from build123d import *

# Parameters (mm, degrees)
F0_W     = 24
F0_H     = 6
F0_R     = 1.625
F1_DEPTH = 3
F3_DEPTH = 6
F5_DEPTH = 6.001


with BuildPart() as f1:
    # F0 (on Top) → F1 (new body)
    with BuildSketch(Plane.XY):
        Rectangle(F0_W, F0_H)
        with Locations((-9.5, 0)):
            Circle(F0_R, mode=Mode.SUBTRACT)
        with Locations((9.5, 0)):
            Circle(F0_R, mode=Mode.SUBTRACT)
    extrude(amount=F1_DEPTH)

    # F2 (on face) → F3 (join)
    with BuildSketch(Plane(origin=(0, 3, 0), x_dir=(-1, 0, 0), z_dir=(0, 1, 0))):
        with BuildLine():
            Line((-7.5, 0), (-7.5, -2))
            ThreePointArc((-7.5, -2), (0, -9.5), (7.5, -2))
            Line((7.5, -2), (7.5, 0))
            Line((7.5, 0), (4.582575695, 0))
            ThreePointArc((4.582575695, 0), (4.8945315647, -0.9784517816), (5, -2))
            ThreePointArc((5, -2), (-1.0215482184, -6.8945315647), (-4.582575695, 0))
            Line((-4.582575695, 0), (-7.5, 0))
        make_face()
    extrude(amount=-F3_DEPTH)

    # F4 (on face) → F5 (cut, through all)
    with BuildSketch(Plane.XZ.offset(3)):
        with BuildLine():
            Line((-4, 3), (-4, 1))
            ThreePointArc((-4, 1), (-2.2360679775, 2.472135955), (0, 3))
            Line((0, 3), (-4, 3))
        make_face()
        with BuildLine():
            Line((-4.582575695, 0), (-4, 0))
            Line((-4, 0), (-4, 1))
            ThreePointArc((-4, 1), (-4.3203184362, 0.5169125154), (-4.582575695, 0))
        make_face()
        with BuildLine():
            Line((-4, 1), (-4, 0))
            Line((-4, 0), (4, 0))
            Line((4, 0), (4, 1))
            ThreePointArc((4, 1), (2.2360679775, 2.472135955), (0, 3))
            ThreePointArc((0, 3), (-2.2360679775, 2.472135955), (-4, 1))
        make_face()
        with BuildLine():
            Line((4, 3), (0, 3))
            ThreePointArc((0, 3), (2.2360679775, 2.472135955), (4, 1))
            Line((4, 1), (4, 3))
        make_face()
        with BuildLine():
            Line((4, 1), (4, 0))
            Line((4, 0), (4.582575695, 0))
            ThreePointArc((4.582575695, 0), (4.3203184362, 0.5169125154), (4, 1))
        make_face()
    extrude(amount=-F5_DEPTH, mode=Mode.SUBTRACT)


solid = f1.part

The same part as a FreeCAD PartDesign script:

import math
import FreeCAD as App
import Part
import Sketcher
from FreeCAD import Vector
Q = App.Units.Quantity

doc = App.newDocument("Part")
body = doc.addObject("PartDesign::Body", "Body")

# Sketch on XY plane
sketch1 = body.newObject("Sketcher::SketchObject", "Sketch")
sketch1.AttachmentSupport = (doc.getObject("XY_Plane"), [""])
sketch1.MapMode = "FlatFace"
sketch1.addGeometry([
    Part.LineSegment(Vector(-12, 3, 0), Vector(-12, -3, 0)),  # 0
    Part.LineSegment(Vector(-12, -3, 0), Vector(12, -3, 0)),  # 1
    Part.LineSegment(Vector(12, -3, 0), Vector(12, 3, 0)),  # 2
    Part.LineSegment(Vector(12, 3, 0), Vector(-12, 3, 0)),  # 3
    Part.Circle(Vector(-9.5, 0, 0), Vector(0, 0, 1), 1.6),  # 4
    Part.Circle(Vector(9.5, 0, 0), Vector(0, 0, 1), 1.6),  # 5
], False)
sketch1.addConstraint([
    Sketcher.Constraint("Coincident", 0, 2, 1, 1),
    Sketcher.Constraint("Coincident", 1, 2, 2, 1),
    Sketcher.Constraint("Coincident", 2, 2, 3, 1),
    Sketcher.Constraint("Coincident", 3, 2, 0, 1),
    Sketcher.Constraint("Vertical", 0),
    Sketcher.Constraint("Horizontal", 1),
    Sketcher.Constraint("Vertical", 2),
    Sketcher.Constraint("Horizontal", 3),
    Sketcher.Constraint("Equal", 4, 5),
    Sketcher.Constraint("Symmetric", 4, 3, 5, 3, -1, 1),
    Sketcher.Constraint("Symmetric", 0, 2, 2, 2, -1, 1),
    Sketcher.Constraint("PointOnObject", 4, 3, -1),
    Sketcher.Constraint("Diameter", 4, Q("3.25 mm")),
    Sketcher.Constraint("DistanceX", 1, 1, 1, 2, Q("24 mm")),
    Sketcher.Constraint("DistanceY", 0, 2, 0, 1, Q("6 mm")),
    Sketcher.Constraint("DistanceX", 4, 3, 5, 3, Q("19 mm")),
])
pad1 = body.newObject("PartDesign::Pad", "Pad")
pad1.Profile = sketch1
pad1.Length = 3

# Sketch on XZ plane
sketch2 = body.newObject("Sketcher::SketchObject", "Sketch001")
sketch2.AttachmentSupport = (doc.getObject("XZ_Plane"), [""])
sketch2.MapMode = "FlatFace"
sketch2.AttachmentOffset = App.Placement(Vector(0, 0, -3), App.Rotation())
sketch2.addGeometry([
    Part.LineSegment(Vector(7.5, 0, 0), Vector(7.5, -2, 0)),  # 0
    Part.ArcOfCircle(Part.Circle(Vector(0, -2, 0), Vector(0, 0, 1), 7.5), math.radians(180), math.radians(360)),  # 1
    Part.LineSegment(Vector(-7.5, -2, 0), Vector(-7.5, 0, 0)),  # 2
    Part.LineSegment(Vector(-7.5, 0, 0), Vector(-4.6, 0, 0)),  # 3
    Part.ArcOfCircle(Part.Circle(Vector(0, -2, 0), Vector(0, 0, 1), 5), math.radians(156), math.radians(180)),  # 4
    Part.ArcOfCircle(Part.Circle(Vector(0, -2, 0), Vector(0, 0, 1), 5), math.radians(180), math.radians(384)),  # 5
    Part.LineSegment(Vector(4.6, 0, 0), Vector(7.5, 0, 0)),  # 6
], False)
sketch2.addConstraint([
    Sketcher.Constraint("Tangent", 0, 2, 1, 2),
    Sketcher.Constraint("Tangent", 1, 1, 2, 1),
    Sketcher.Constraint("Coincident", 2, 2, 3, 1),
    Sketcher.Constraint("Coincident", 3, 2, 4, 1),
    Sketcher.Constraint("Tangent", 4, 2, 5, 1),
    Sketcher.Constraint("Coincident", 5, 2, 6, 1),
    Sketcher.Constraint("Coincident", 6, 2, 0, 1),
    Sketcher.Constraint("Vertical", 0),
    Sketcher.Constraint("Vertical", 2),
    Sketcher.Constraint("Horizontal", 3),
    Sketcher.Constraint("Horizontal", 6),
    Sketcher.Constraint("Coincident", 4, 3, 1, 3),
    Sketcher.Constraint("Equal", 4, 5),
    Sketcher.Constraint("Symmetric", 3, 2, 5, 2, -1, 1),
    Sketcher.Constraint("PointOnObject", 1, 3, -2),
    Sketcher.Constraint("Horizontal", 1, 1, 4, 2),
    Sketcher.Constraint("Radius", 4, Q("5 mm")),
    Sketcher.Constraint("Radius", 1, Q("7.5 mm")),
    Sketcher.Constraint("DistanceY", 0, 2, 0, 1, Q("2 mm")),
])
pad2 = body.newObject("PartDesign::Pad", "Pad001")
pad2.Profile = sketch2
pad2.Length = 6

# Sketch on XZ plane
sketch3 = body.newObject("Sketcher::SketchObject", "Sketch002")
sketch3.AttachmentSupport = (doc.getObject("XZ_Plane"), [""])
sketch3.MapMode = "FlatFace"
sketch3.AttachmentOffset = App.Placement(Vector(0, 0, 3), App.Rotation())
sketch3.addGeometry([
    Part.LineSegment(Vector(-4, 3, 0), Vector(-4, 1, 0)),  # 0
    Part.ArcOfCircle(Part.Circle(Vector(0, -2, 0), Vector(0, 0, 1), 5), math.radians(143.13), math.radians(156.42)),  # 1
    Part.LineSegment(Vector(-4.6, 0, 0), Vector(4.6, 0, 0)),  # 2
    Part.ArcOfCircle(Part.Circle(Vector(0, -2, 0), Vector(0, 0, 1), 5), math.radians(23.58), math.radians(36.87)),  # 3
    Part.LineSegment(Vector(4, 1, 0), Vector(4, 3, 0)),  # 4
    Part.LineSegment(Vector(4, 3, 0), Vector(-4, 3, 0)),  # 5
], False)
sketch3.addConstraint([
    Sketcher.Constraint("Coincident", 0, 2, 1, 1),
    Sketcher.Constraint("Coincident", 1, 2, 2, 1),
    Sketcher.Constraint("Coincident", 2, 2, 3, 1),
    Sketcher.Constraint("Coincident", 3, 2, 4, 1),
    Sketcher.Constraint("Coincident", 4, 2, 5, 1),
    Sketcher.Constraint("Coincident", 5, 2, 0, 1),
    Sketcher.Constraint("Vertical", 0),
    Sketcher.Constraint("Horizontal", 2),
    Sketcher.Constraint("Vertical", 4),
    Sketcher.Constraint("Horizontal", 5),
    Sketcher.Constraint("Coincident", 3, 3, 1, 3),
    Sketcher.Constraint("Equal", 1, 3),
    Sketcher.Constraint("Symmetric", 1, 2, 2, 2, -1, 1),
    Sketcher.Constraint("Horizontal", 0, 2, 3, 2),
    Sketcher.Constraint("Radius", 1, Q("5 mm")),
    Sketcher.Constraint("DistanceX", 5, 2, 5, 1, Q("8 mm")),
    Sketcher.Constraint("DistanceY", 0, 2, 0, 1, Q("2 mm")),
    Sketcher.Constraint("DistanceY", 1, 3, -1, 1, Q("2 mm")),
])
pocket1 = body.newObject("PartDesign::Pocket", "Pocket")
pocket1.Profile = sketch3
pocket1.Type = "ThroughAll"

doc.recompute()
